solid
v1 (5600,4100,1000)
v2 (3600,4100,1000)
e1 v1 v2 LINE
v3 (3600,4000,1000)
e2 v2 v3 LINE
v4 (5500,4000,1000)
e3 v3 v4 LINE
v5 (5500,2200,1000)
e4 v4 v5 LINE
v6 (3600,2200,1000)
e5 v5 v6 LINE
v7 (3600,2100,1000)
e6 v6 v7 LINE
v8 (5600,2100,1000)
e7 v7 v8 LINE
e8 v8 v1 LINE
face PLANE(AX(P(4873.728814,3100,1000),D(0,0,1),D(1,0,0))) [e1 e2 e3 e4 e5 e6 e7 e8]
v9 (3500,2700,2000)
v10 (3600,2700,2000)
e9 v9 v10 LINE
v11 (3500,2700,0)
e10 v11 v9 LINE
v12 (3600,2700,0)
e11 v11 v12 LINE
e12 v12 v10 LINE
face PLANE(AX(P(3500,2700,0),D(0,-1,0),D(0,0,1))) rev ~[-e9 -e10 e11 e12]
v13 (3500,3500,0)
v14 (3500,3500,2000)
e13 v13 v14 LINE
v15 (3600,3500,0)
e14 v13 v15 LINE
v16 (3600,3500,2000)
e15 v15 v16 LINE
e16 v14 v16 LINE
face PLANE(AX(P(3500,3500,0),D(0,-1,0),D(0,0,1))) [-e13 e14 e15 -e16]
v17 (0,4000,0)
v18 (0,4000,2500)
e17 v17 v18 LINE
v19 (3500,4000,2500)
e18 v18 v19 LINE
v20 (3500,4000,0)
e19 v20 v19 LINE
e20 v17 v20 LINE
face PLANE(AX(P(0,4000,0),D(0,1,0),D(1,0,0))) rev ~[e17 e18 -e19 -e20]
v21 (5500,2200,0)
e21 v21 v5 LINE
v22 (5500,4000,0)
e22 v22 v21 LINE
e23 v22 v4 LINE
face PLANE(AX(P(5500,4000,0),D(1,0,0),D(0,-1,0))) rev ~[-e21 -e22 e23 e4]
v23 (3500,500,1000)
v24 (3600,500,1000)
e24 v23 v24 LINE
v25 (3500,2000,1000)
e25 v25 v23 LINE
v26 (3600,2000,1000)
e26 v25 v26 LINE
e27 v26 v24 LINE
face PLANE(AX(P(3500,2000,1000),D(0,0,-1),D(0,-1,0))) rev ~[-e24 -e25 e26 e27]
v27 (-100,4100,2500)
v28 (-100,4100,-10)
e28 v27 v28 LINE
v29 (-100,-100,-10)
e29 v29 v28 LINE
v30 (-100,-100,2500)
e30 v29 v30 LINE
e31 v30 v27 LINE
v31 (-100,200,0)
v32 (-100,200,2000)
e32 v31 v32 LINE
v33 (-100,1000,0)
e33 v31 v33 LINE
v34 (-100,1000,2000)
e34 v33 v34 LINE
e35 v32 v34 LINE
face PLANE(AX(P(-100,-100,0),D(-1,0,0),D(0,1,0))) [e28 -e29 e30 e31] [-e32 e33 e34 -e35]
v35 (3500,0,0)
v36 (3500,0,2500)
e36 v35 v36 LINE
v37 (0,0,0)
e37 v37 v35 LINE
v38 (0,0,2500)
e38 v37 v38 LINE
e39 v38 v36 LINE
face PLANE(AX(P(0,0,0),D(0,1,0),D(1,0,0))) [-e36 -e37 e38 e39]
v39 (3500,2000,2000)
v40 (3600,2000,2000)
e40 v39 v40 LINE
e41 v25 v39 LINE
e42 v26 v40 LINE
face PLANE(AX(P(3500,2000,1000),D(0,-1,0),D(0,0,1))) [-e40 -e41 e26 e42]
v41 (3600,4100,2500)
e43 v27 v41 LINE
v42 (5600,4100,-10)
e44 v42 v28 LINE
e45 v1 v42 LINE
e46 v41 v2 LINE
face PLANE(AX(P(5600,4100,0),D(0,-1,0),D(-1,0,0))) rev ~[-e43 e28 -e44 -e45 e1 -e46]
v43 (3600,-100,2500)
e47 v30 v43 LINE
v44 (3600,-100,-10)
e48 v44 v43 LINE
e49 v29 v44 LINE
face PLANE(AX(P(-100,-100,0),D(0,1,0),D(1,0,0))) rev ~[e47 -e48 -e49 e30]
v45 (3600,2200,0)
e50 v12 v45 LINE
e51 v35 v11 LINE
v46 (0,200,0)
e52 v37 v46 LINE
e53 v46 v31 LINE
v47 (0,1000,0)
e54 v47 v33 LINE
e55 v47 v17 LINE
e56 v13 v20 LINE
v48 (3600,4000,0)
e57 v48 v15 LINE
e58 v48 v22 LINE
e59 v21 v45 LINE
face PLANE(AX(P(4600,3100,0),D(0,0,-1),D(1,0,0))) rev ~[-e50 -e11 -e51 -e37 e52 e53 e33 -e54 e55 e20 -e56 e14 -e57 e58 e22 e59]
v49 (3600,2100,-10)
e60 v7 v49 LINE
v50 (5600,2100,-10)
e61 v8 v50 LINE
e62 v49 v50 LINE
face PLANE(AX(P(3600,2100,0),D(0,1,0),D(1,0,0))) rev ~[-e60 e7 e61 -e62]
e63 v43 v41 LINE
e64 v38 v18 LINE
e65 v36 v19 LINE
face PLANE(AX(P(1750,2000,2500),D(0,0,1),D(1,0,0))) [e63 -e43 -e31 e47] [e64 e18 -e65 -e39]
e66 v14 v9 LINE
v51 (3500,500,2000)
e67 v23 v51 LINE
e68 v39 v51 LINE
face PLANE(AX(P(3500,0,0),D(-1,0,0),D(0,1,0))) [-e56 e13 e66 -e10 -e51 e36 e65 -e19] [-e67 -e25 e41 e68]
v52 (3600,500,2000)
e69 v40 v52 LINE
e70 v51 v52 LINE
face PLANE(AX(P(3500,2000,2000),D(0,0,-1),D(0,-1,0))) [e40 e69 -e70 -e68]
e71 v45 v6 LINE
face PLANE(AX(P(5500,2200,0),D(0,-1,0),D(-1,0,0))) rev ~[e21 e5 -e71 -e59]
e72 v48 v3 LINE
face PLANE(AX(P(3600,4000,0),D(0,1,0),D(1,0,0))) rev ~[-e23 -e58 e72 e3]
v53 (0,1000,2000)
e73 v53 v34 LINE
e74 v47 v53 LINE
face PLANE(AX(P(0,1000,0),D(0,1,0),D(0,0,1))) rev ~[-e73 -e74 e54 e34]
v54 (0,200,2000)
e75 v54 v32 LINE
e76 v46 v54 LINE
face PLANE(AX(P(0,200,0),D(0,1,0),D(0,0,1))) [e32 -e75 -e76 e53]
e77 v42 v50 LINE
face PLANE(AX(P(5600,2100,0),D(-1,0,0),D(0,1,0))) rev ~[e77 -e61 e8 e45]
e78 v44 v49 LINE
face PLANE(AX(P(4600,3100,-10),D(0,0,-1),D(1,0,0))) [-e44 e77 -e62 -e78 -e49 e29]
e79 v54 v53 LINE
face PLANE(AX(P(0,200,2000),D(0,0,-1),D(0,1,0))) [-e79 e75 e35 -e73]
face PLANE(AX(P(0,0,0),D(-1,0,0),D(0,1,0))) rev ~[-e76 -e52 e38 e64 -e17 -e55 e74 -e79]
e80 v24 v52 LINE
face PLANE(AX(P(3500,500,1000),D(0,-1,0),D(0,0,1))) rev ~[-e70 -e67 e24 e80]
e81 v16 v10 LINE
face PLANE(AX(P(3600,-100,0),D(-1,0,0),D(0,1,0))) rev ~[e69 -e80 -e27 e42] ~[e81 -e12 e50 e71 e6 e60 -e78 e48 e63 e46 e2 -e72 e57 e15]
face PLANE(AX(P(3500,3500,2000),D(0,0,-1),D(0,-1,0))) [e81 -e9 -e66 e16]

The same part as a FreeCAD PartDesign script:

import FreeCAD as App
import Part
import Sketcher
from FreeCAD import Vector
Q = App.Units.Quantity


def add_polygon(sketch, points):
    """Adds a closed chain of lines whose ends are joined by coincident constraints."""
    first, n = sketch.GeometryCount, len(points)
    for a, b in zip(points, points[1:] + points[:1]):
        sketch.addGeometry(Part.LineSegment(App.Vector(*a, 0), App.Vector(*b, 0)), False)
    for i in range(n):
        sketch.addConstraint(Sketcher.Constraint("Coincident", first + i, 2, first + (i + 1) % n, 1))

doc = App.newDocument("Part")
params = doc.addObject("Spreadsheet::Sheet", "Params")
for row, (alias, value) in enumerate([
    ("sketch1_width", "3700 mm"),
    ("sketch1_height", "4200 mm"),
    ("pad1_length", "10 mm"),
    ("sketch2_width", "3700 mm"),
    ("sketch2_width2", "3500 mm"),
    ("sketch2_height", "4200 mm"),
    ("sketch2_height2", "4000 mm"),
    ("pad2_length", "2500 mm"),
    ("sketch3_width", "800 mm"),
    ("sketch3_height", "2000 mm"),
    ("sketch4_width", "800 mm"),
    ("sketch4_height", "2000 mm"),
    ("sketch5_width", "2000 mm"),
    ("pad3_length", "10 mm"),
    ("sketch6_width", "2000 mm"),
    ("sketch6_width2", "1900 mm"),
    ("sketch6_height", "100 mm"),
    ("pad4_length", "1000 mm"),
    ("sketch7_width", "1500 mm"),
    ("sketch7_height", "1000 mm"),
], start=1):
    params.set(f"A{row}", alias)
    params.set(f"B{row}", "=" + value)
    params.setAlias(f"B{row}", alias)

body = doc.addObject("PartDesign::Body", "Body")

sketch1 = body.newObject("Sketcher::SketchObject", "Sketch")
sketch1.AttachmentSupport = (doc.getObject("XY_Plane"), [""])
sketch1.MapMode = "FlatFace"
add_polygon(sketch1, [(-100, 4100), (-100, -100), (3600, -100), (3600, 4100)])
sketch1.addConstraint(Sketcher.Constraint("Vertical", 0))
sketch1.addConstraint(Sketcher.Constraint("Horizontal", 1))
sketch1.addConstraint(Sketcher.Constraint("Vertical", 2))
sketch1.addConstraint(Sketcher.Constraint("Horizontal", 3))
sketch1.addConstraint(Sketcher.Constraint("DistanceX", 1, 1, 1, 2, Q("3700 mm")))
sketch1.addConstraint(Sketcher.Constraint("DistanceY", 0, 2, 0, 1, Q("4200 mm")))
sketch1.addConstraint(Sketcher.Constraint("DistanceX", 0, 2, -1, 1, Q("100 mm")))
sketch1.addConstraint(Sketcher.Constraint("DistanceY", 0, 2, -1, 1, Q("100 mm")))
sketch1.setExpression("Constraints[8]", "Params.sketch1_width")
sketch1.setExpression("Constraints[9]", "Params.sketch1_height")
pad1 = body.newObject("PartDesign::Pad", "Pad")
pad1.Profile = sketch1
pad1.setExpression("Length", "Params.pad1_length")
pad1.Reversed = True

sketch2 = body.newObject("Sketcher::SketchObject", "Sketch001")
sketch2.AttachmentSupport = (doc.getObject("XY_Plane"), [""])
sketch2.MapMode = "FlatFace"
add_polygon(sketch2, [(-100, 4100), (-100, -100), (3600, -100), (3600, 4100)])
add_polygon(sketch2, [(3500, 0), (0, 0), (0, 4000), (3500, 4000)])
sketch2.addConstraint(Sketcher.Constraint("Vertical", 0))
sketch2.addConstraint(Sketcher.Constraint("Horizontal", 1))
sketch2.addConstraint(Sketcher.Constraint("Vertical", 2))
sketch2.addConstraint(Sketcher.Constraint("Horizontal", 3))
sketch2.addConstraint(Sketcher.Constraint("Horizontal", 4))
sketch2.addConstraint(Sketcher.Constraint("Vertical", 5))
sketch2.addConstraint(Sketcher.Constraint("Horizontal", 6))
sketch2.addConstraint(Sketcher.Constraint("Vertical", 7))
sketch2.addConstraint(Sketcher.Constraint("Coincident", 4, 2, -1, 1))
sketch2.addConstraint(Sketcher.Constraint("DistanceX", 1, 1, 1, 2, Q("3700 mm")))
sketch2.addConstraint(Sketcher.Constraint("DistanceX", 4, 2, 4, 1, Q("3500 mm")))
sketch2.addConstraint(Sketcher.Constraint("DistanceY", 0, 2, 0, 1, Q("4200 mm")))
sketch2.addConstraint(Sketcher.Constraint("DistanceY", 5, 1, 5, 2, Q("4000 mm")))
sketch2.addConstraint(Sketcher.Constraint("DistanceX", 0, 2, -1, 1, Q("100 mm")))
sketch2.addConstraint(Sketcher.Constraint("DistanceY", 0, 2, -1, 1, Q("100 mm")))
sketch2.setExpression("Constraints[17]", "Params.sketch2_width")
sketch2.setExpression("Constraints[18]", "Params.sketch2_width2")
sketch2.setExpression("Constraints[19]", "Params.sketch2_height")
sketch2.setExpression("Constraints[20]", "Params.sketch2_height2")
pad2 = body.newObject("PartDesign::Pad", "Pad001")
pad2.Profile = sketch2
pad2.setExpression("Length", "Params.pad2_length")

sketch3 = body.newObject("Sketcher::SketchObject", "Sketch002")
sketch3.AttachmentSupport = (doc.getObject("YZ_Plane"), [""])
sketch3.MapMode = "FlatFace"
add_polygon(sketch3, [(200, 2000), (200, 0), (1000, 0), (1000, 2000)])
sketch3.addConstraint(Sketcher.Constraint("Vertical", 0))
sketch3.addConstraint(Sketcher.Constraint("Horizontal", 1))
sketch3.addConstraint(Sketcher.Constraint("Vertical", 2))
sketch3.addConstraint(Sketcher.Constraint("Horizontal", 3))
sketch3.addConstraint(Sketcher.Constraint("PointOnObject", 0, 2, -1))
sketch3.addConstraint(Sketcher.Constraint("DistanceX", 1, 1, 1, 2, Q("800 mm")))
sketch3.addConstraint(Sketcher.Constraint("DistanceY", 0, 2, 0, 1, Q("2000 mm")))
sketch3.addConstraint(Sketcher.Constraint("DistanceX", -1, 1, 0, 2, Q("200 mm")))
sketch3.setExpression("Constraints[9]", "Params.sketch3_width")
sketch3.setExpression("Constraints[10]", "Params.sketch3_height")
pocket1 = body.newObject("PartDesign::Pocket", "Pocket")
pocket1.Profile = sketch3
pocket1.Type = "ThroughAll"

sketch4 = body.newObject("Sketcher::SketchObject", "Sketch003")
sketch4.AttachmentSupport = (doc.getObject("YZ_Plane"), [""])
sketch4.MapMode = "FlatFace"
sketch4.AttachmentOffset = App.Placement(Vector(0, 0, 3500), App.Rotation())
add_polygon(sketch4, [(3500, 2000), (3500, 0), (2700, 0), (2700, 2000)])
sketch4.addConstraint(Sketcher.Constraint("Vertical", 0))
sketch4.addConstraint(Sketcher.Constraint("Horizontal", 1))
sketch4.addConstraint(Sketcher.Constraint("Vertical", 2))
sketch4.addConstraint(Sketcher.Constraint("Horizontal", 3))
sketch4.addConstraint(Sketcher.Constraint("PointOnObject", 0, 2, -1))
sketch4.addConstraint(Sketcher.Constraint("DistanceX", 1, 2, 1, 1, Q("800 mm")))
sketch4.addConstraint(Sketcher.Constraint("DistanceY", 0, 2, 0, 1, Q("2000 mm")))
sketch4.addConstraint(Sketcher.Constraint("DistanceX", -1, 1, 0, 2, Q("3500 mm")))
sketch4.setExpression("Constraints[9]", "Params.sketch4_width")
sketch4.setExpression("Constraints[10]", "Params.sketch4_height")
pocket2 = body.newObject("PartDesign::Pocket", "Pocket001")
pocket2.Profile = sketch4
pocket2.Type = "ThroughAll"
pocket2.Reversed = True

sketch5 = body.newObject("Sketcher::SketchObject", "Sketch004")
sketch5.AttachmentSupport = (doc.getObject("XY_Plane"), [""])
sketch5.MapMode = "FlatFace"
sketch5.AttachmentOffset = App.Placement(Vector(0, 0, -10), App.Rotation())
add_polygon(sketch5, [(3600, 2100), (3600, 4100), (5600, 4100), (5600, 2100)])
sketch5.addConstraint(Sketcher.Constraint("Vertical", 0))
sketch5.addConstraint(Sketcher.Constraint("Horizontal", 1))
sketch5.addConstraint(Sketcher.Constraint("Vertical", 2))
sketch5.addConstraint(Sketcher.Constraint("Horizontal", 3))
sketch5.addConstraint(Sketcher.Constraint("Equal", 3, 0))
sketch5.addConstraint(Sketcher.Constraint("DistanceX", 1, 1, 1, 2, Q("2000 mm")))
sketch5.addConstraint(Sketcher.Constraint("DistanceX", -1, 1, 0, 2, Q("3600 mm")))
sketch5.addConstraint(Sketcher.Constraint("DistanceY", -1, 1, 0, 2, Q("4100 mm")))
sketch5.setExpression("Constraints[9]", "Params.sketch5_width")
pad3 = body.newObject("PartDesign::Pad", "Pad002")
pad3.Profile = sketch5
pad3.setExpression("Length", "Params.pad3_length")

sketch6 = body.newObject("Sketcher::SketchObject", "Sketch005")
sketch6.AttachmentSupport = (doc.getObject("XY_Plane"), [""])
sketch6.MapMode = "FlatFace"
add_polygon(sketch6, [(5600, 4100), (3600, 4100), (3600, 4000), (5500, 4000), (5500, 2200), (3600, 2200), (3600, 2100), (5600, 2100)])
sketch6.addConstraint(Sketcher.Constraint("Horizontal", 0))
sketch6.addConstraint(Sketcher.Constraint("Vertical", 1))
sketch6.addConstraint(Sketcher.Constraint("Horizontal", 2))
sketch6.addConstraint(Sketcher.Constraint("Vertical", 3))
sketch6.addConstraint(Sketcher.Constraint("Horizontal", 4))
sketch6.addConstraint(Sketcher.Constraint("Vertical", 5))
sketch6.addConstraint(Sketcher.Constraint("Horizontal", 6))
sketch6.addConstraint(Sketcher.Constraint("Vertical", 7))
sketch6.addConstraint(Sketcher.Constraint("Vertical", 1, 2, 4, 2))
sketch6.addConstraint(Sketcher.Constraint("Equal", 1, 5))
sketch6.addConstraint(Sketcher.Constraint("Equal", 6, 7))
sketch6.addConstraint(Sketcher.Constraint("DistanceX", 0, 2, 0, 1, Q("2000 mm")))
sketch6.addConstraint(Sketcher.Constraint("DistanceX", 2, 1, 2, 2, Q("1900 mm")))
sketch6.addConstraint(Sketcher.Constraint("DistanceY", 1, 2, 1, 1, Q("100 mm")))
sketch6.addConstraint(Sketcher.Constraint("DistanceX", -1, 1, 0, 2, Q("3600 mm")))
sketch6.addConstraint(Sketcher.Constraint("DistanceY", -1, 1, 0, 2, Q("4100 mm")))
sketch6.setExpression("Constraints[19]", "Params.sketch6_width")
sketch6.setExpression("Constraints[20]", "Params.sketch6_width2")
sketch6.setExpression("Constraints[21]", "Params.sketch6_height")
pad4 = body.newObject("PartDesign::Pad", "Pad003")
pad4.Profile = sketch6
pad4.setExpression("Length", "Params.pad4_length")

sketch7 = body.newObject("Sketcher::SketchObject", "Sketch006")
sketch7.AttachmentSupport = (doc.getObject("YZ_Plane"), [""])
sketch7.MapMode = "FlatFace"
sketch7.AttachmentOffset = App.Placement(Vector(0, 0, 3500), App.Rotation())
add_polygon(sketch7, [(2000, 2000), (2000, 1000), (500, 1000), (500, 2000)])
sketch7.addConstraint(Sketcher.Constraint("Vertical", 0))
sketch7.addConstraint(Sketcher.Constraint("Horizontal", 1))
sketch7.addConstraint(Sketcher.Constraint("Vertical", 2))
sketch7.addConstraint(Sketcher.Constraint("Horizontal", 3))
sketch7.addConstraint(Sketcher.Constraint("DistanceX", 1, 2, 1, 1, Q("1500 mm")))
sketch7.addConstraint(Sketcher.Constraint("DistanceY", 0, 2, 0, 1, Q("1000 mm")))
sketch7.addConstraint(Sketcher.Constraint("DistanceX", -1, 1, 0, 2, Q("2000 mm")))
sketch7.addConstraint(Sketcher.Constraint("DistanceY", -1, 1, 0, 2, Q("1000 mm")))
sketch7.setExpression("Constraints[8]", "Params.sketch7_width")
sketch7.setExpression("Constraints[9]", "Params.sketch7_height")
pocket3 = body.newObject("PartDesign::Pocket", "Pocket002")
pocket3.Profile = sketch7
pocket3.Type = "ThroughAll"
pocket3.Reversed = True

doc.recompute()
